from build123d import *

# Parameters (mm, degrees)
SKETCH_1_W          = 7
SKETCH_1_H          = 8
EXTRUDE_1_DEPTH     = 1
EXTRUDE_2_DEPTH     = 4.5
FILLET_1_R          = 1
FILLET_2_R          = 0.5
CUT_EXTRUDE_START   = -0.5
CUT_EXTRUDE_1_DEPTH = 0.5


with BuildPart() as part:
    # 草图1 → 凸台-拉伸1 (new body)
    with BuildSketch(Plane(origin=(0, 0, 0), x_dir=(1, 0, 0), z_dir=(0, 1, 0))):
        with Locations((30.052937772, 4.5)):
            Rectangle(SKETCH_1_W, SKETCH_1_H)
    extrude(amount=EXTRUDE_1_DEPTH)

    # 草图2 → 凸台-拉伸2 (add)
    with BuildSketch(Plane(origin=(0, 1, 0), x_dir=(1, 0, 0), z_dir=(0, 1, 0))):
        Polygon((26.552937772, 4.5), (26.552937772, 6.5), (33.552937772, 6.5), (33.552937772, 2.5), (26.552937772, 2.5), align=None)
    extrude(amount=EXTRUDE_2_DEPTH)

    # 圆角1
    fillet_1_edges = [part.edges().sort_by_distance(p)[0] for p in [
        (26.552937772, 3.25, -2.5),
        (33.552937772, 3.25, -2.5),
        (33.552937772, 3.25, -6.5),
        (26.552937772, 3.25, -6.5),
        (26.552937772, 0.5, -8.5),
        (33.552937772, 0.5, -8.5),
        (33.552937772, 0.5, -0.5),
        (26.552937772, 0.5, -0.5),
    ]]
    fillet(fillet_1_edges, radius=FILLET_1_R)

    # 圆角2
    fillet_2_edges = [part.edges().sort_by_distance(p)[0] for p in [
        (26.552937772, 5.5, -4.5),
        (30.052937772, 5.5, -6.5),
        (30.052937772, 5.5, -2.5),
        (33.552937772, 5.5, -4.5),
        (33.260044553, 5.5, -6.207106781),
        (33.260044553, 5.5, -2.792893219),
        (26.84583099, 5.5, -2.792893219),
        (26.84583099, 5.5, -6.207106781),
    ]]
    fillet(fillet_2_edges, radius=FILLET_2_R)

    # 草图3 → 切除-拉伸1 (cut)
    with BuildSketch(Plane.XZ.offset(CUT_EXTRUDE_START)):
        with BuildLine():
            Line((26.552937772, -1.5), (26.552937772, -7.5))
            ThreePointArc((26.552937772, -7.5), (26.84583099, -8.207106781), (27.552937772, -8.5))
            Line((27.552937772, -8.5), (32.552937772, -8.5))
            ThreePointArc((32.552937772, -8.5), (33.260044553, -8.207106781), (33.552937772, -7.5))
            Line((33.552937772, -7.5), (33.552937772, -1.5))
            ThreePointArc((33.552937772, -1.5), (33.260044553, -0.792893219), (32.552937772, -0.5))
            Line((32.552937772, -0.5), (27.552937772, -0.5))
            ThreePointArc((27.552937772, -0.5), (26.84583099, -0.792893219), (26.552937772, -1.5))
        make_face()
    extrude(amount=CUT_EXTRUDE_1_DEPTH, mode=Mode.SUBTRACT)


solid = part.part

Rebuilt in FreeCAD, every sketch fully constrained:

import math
import FreeCAD as App
import Part
import Sketcher

V = App.Vector


def edges_at(feature, points):
    """Names of the edges that pass closest to the given points."""
    edges = feature.Shape.Edges
    near = lambda p: min(range(len(edges)), key=lambda i: edges[i].distToShape(Part.Vertex(*p))[0])
    return sorted({f"Edge{near(p) + 1}" for p in points})


def add_polygon(sketch, points):
    """Adds a closed chain of lines whose ends are joined by coincident constraints."""
    first, n = sketch.GeometryCount, len(points)
    for a, b in zip(points, points[1:] + points[:1]):
        sketch.addGeometry(Part.LineSegment(App.Vector(*a, 0), App.Vector(*b, 0)), False)
    for i in range(n):
        sketch.addConstraint(Sketcher.Constraint("Coincident", first + i, 2, first + (i + 1) % n, 1))

doc = App.newDocument("Part")
body = doc.addObject("PartDesign::Body", "Body")

# Sketch on XZ plane
sketch1 = body.newObject("Sketcher::SketchObject", "Sketch")
sketch1.AttachmentSupport = (doc.getObject("XZ_Plane"), [""])
sketch1.MapMode = "FlatFace"
add_polygon(sketch1, [(27, -8), (27, 0), (34, 0), (34, -8)])  # lines 0-3
sketch1.addConstraint([
    Sketcher.Constraint("Vertical", 0),
    Sketcher.Constraint("Horizontal", 1),
    Sketcher.Constraint("Vertical", 2),
    Sketcher.Constraint("Horizontal", 3),
    Sketcher.Constraint("DistanceX", 1, 1, 1, 2, 7.0),
    Sketcher.Constraint("DistanceY", 0, 1, 0, 2, 8.0),
    Sketcher.Constraint("DistanceY", 0, 2, -1, 1, 0.5),
    Sketcher.Constraint("DistanceX", -1, 1, 0, 2, 26.552938),
])
pad1 = body.newObject("PartDesign::Pad", "Pad")
pad1.Profile = sketch1
pad1.Length = 1
pad1.Reversed = True

# Sketch on XZ plane
sketch2 = body.newObject("Sketcher::SketchObject", "Sketch001")
sketch2.AttachmentSupport = (doc.getObject("XZ_Plane"), [""])
sketch2.MapMode = "FlatFace"
sketch2.AttachmentOffset = App.Placement(V(0, 0, -1), App.Rotation())
add_polygon(sketch2, [(26.6, -6.5), (26.6, -2.5), (33.6, -2.5), (33.6, -6.5)])  # lines 0-3
sketch2.addConstraint([
    Sketcher.Constraint("Vertical", 0),
    Sketcher.Constraint("Horizontal", 1),
    Sketcher.Constraint("Vertical", 2),
    Sketcher.Constraint("Horizontal", 3),
    Sketcher.Constraint("DistanceX", 1, 1, 1, 2, 7.0),
    Sketcher.Constraint("DistanceY", 0, 1, 0, 2, 4.0),
    Sketcher.Constraint("DistanceY", 0, 2, -1, 1, 2.5),
    Sketcher.Constraint("DistanceX", -1, 1, 0, 2, 26.552938),
])
pad2 = body.newObject("PartDesign::Pad", "Pad001")
pad2.Profile = sketch2
pad2.Length = 4.5
pad2.Reversed = True
doc.recompute()

fillet = body.newObject("PartDesign::Fillet", "Fillet")
fillet.Base = (pad2, edges_at(pad2, [
    (26.553, 3.25, -2.5),
    (33.553, 3.25, -2.5),
    (33.553, 3.25, -6.5),
    (26.553, 3.25, -6.5),
    (26.553, 0.5, -8.5),
    (33.553, 0.5, -8.5),
    (33.553, 0.5, -0.5),
    (26.553, 0.5, -0.5),
]))
fillet.Radius = 1
doc.recompute()

fillet2 = body.newObject("PartDesign::Fillet", "Fillet001")
fillet2.Base = (fillet, edges_at(fillet, [
    (26.553, 5.5, -4.5),
    (30.053, 5.5, -6.5),
    (30.053, 5.5, -2.5),
    (33.553, 5.5, -4.5),
    (33.26, 5.5, -6.207),
    (33.26, 5.5, -2.793),
    (26.846, 5.5, -2.793),
    (26.846, 5.5, -6.207),
]))
fillet2.Radius = 0.5

# Sketch on XZ plane
sketch3 = body.newObject("Sketcher::SketchObject", "Sketch002")
sketch3.AttachmentSupport = (doc.getObject("XZ_Plane"), [""])
sketch3.MapMode = "FlatFace"
sketch3.AttachmentOffset = App.Placement(V(0, 0, -0.5), App.Rotation())
sketch3.addGeometry([
    Part.LineSegment(V(26.6, -1.5, 0), V(26.6, -7.5, 0)),  # 0
    Part.ArcOfCircle(Part.Circle(V(27.6, -7.5, 0), V(0, 0, 1), 1), math.radians(180), math.radians(270)),  # 1
    Part.LineSegment(V(27.6, -8.5, 0), V(32.6, -8.5, 0)),  # 2
    Part.ArcOfCircle(Part.Circle(V(32.6, -7.5, 0), V(0, 0, 1), 1), math.radians(-90), math.radians(0)),  # 3
    Part.LineSegment(V(33.6, -7.5, 0), V(33.6, -1.5, 0)),  # 4
    Part.ArcOfCircle(Part.Circle(V(32.6, -1.5, 0), V(0, 0, 1), 1), math.radians(0), math.radians(90)),  # 5
    Part.LineSegment(V(32.6, -0.5, 0), V(27.6, -0.5, 0)),  # 6
    Part.ArcOfCircle(Part.Circle(V(27.6, -1.5, 0), V(0, 0, 1), 1), math.radians(90), math.radians(180)),  # 7
], False)
sketch3.addConstraint([
    Sketcher.Constraint("Tangent", 0, 2, 1, 1),
    Sketcher.Constraint("Tangent", 1, 2, 2, 1),
    Sketcher.Constraint("Tangent", 2, 2, 3, 1),
    Sketcher.Constraint("Tangent", 3, 2, 4, 1),
    Sketcher.Constraint("Tangent", 4, 2, 5, 1),
    Sketcher.Constraint("Tangent", 5, 2, 6, 1),
    Sketcher.Constraint("Tangent", 6, 2, 7, 1),
    Sketcher.Constraint("Tangent", 7, 2, 0, 1),
    Sketcher.Constraint("Vertical", 0),
    Sketcher.Constraint("Horizontal", 2),
    Sketcher.Constraint("Vertical", 4),
    Sketcher.Constraint("Horizontal", 6),
    Sketcher.Constraint("Equal", 1, 3),
    Sketcher.Constraint("Equal", 3, 5),
    Sketcher.Constraint("Equal", 5, 7),
    Sketcher.Constraint("Radius", 1, 1.0),
    Sketcher.Constraint("DistanceX", 2, 1, 2, 2, 5.0),
    Sketcher.Constraint("DistanceY", 0, 2, 0, 1, 6.0),
    Sketcher.Constraint("DistanceY", 1, 3, -1, 1, 7.5),
    Sketcher.Constraint("DistanceX", -1, 1, 1, 3, 27.552938),
])
pocket1 = body.newObject("PartDesign::Pocket", "Pocket")
pocket1.Profile = sketch3
pocket1.Length = 0.5
pocket1.Reversed = True

doc.recompute()
